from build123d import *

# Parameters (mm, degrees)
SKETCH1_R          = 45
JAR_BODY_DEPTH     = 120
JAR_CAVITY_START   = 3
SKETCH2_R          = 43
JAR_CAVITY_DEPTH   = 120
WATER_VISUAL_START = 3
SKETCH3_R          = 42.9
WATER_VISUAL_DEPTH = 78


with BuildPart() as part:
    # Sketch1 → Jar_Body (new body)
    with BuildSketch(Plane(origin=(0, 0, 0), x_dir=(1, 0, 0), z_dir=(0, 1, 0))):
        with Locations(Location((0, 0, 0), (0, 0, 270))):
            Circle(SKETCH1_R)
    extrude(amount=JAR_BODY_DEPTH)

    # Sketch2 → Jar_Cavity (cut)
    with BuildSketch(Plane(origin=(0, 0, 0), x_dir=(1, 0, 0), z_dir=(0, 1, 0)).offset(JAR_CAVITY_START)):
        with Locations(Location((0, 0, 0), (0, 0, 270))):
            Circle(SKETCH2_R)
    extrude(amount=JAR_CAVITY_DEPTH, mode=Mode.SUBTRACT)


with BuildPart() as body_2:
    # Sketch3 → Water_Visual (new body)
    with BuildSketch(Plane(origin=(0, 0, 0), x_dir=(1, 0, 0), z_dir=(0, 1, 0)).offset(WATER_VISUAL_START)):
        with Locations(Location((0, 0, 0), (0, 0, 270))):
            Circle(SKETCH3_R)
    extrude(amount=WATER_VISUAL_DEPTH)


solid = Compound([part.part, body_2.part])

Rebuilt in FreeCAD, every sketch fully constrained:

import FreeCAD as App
import Part
import Sketcher
Q = App.Units.Quantity

doc = App.newDocument("Part")
params = doc.addObject("Spreadsheet::Sheet", "Params")
for row, (alias, value) in enumerate([
    ("sketch1_diameter", "90 mm"),
    ("pad1_length", "120 mm"),
    ("sketch2_diameter", "86 mm"),
    ("pocket1_length", "120 mm"),
    ("sketch3_diameter", "85.8 mm"),
    ("pad2_length", "78 mm"),
], start=1):
    params.set(f"A{row}", alias)
    params.set(f"B{row}", "=" + value)
    params.setAlias(f"B{row}", alias)

body = doc.addObject("PartDesign::Body", "Body")

# Sketch on XZ plane
sketch1 = body.newObject("Sketcher::SketchObject", "Sketch")
sketch1.AttachmentSupport = (doc.getObject("XZ_Plane"), [""])
sketch1.MapMode = "FlatFace"
sketch1.addGeometry(Part.Circle(App.Vector(0, 0, 0), App.Vector(0, 0, 1), 45), False)
sketch1.addConstraint([
    Sketcher.Constraint("Coincident", 0, 3, -1, 1),
    Sketcher.Constraint("Diameter", 0, Q("90 mm")),
])
sketch1.setExpression("Constraints[1]", "Params.sketch1_diameter")
pad1 = body.newObject("PartDesign::Pad", "Pad")
pad1.Profile = sketch1
pad1.setExpression("Length", "Params.pad1_length")
pad1.Reversed = True

# Sketch on XZ plane
sketch2 = body.newObject("Sketcher::SketchObject", "Sketch001")
sketch2.AttachmentSupport = (doc.getObject("XZ_Plane"), [""])
sketch2.MapMode = "FlatFace"
sketch2.AttachmentOffset = App.Placement(App.Vector(0, 0, -3), App.Rotation())
sketch2.addGeometry(Part.Circle(App.Vector(0, 0, 0), App.Vector(0, 0, 1), 43), False)
sketch2.addConstraint([
    Sketcher.Constraint("Coincident", 0, 3, -1, 1),
    Sketcher.Constraint("Diameter", 0, Q("86 mm")),
])
sketch2.setExpression("Constraints[1]", "Params.sketch2_diameter")
pocket1 = body.newObject("PartDesign::Pocket", "Pocket")
pocket1.Profile = sketch2
pocket1.setExpression("Length", "Params.pocket1_length")
body2 = doc.addObject("PartDesign::Body", "Body001")

# Sketch on XZ plane
sketch3 = body2.newObject("Sketcher::SketchObject", "Sketch002")
sketch3.AttachmentSupport = (doc.getObject("XZ_Plane001"), [""])
sketch3.MapMode = "FlatFace"
sketch3.AttachmentOffset = App.Placement(App.Vector(0, 0, -3), App.Rotation())
sketch3.addGeometry(Part.Circle(App.Vector(0, 0, 0), App.Vector(0, 0, 1), 43), False)
sketch3.addConstraint([
    Sketcher.Constraint("Coincident", 0, 3, -1, 1),
    Sketcher.Constraint("Diameter", 0, Q("85.8 mm")),
])
sketch3.setExpression("Constraints[1]", "Params.sketch3_diameter")
pad2 = body2.newObject("PartDesign::Pad", "Pad001")
pad2.Profile = sketch3
pad2.setExpression("Length", "Params.pad2_length")
pad2.Reversed = True

doc.recompute()
